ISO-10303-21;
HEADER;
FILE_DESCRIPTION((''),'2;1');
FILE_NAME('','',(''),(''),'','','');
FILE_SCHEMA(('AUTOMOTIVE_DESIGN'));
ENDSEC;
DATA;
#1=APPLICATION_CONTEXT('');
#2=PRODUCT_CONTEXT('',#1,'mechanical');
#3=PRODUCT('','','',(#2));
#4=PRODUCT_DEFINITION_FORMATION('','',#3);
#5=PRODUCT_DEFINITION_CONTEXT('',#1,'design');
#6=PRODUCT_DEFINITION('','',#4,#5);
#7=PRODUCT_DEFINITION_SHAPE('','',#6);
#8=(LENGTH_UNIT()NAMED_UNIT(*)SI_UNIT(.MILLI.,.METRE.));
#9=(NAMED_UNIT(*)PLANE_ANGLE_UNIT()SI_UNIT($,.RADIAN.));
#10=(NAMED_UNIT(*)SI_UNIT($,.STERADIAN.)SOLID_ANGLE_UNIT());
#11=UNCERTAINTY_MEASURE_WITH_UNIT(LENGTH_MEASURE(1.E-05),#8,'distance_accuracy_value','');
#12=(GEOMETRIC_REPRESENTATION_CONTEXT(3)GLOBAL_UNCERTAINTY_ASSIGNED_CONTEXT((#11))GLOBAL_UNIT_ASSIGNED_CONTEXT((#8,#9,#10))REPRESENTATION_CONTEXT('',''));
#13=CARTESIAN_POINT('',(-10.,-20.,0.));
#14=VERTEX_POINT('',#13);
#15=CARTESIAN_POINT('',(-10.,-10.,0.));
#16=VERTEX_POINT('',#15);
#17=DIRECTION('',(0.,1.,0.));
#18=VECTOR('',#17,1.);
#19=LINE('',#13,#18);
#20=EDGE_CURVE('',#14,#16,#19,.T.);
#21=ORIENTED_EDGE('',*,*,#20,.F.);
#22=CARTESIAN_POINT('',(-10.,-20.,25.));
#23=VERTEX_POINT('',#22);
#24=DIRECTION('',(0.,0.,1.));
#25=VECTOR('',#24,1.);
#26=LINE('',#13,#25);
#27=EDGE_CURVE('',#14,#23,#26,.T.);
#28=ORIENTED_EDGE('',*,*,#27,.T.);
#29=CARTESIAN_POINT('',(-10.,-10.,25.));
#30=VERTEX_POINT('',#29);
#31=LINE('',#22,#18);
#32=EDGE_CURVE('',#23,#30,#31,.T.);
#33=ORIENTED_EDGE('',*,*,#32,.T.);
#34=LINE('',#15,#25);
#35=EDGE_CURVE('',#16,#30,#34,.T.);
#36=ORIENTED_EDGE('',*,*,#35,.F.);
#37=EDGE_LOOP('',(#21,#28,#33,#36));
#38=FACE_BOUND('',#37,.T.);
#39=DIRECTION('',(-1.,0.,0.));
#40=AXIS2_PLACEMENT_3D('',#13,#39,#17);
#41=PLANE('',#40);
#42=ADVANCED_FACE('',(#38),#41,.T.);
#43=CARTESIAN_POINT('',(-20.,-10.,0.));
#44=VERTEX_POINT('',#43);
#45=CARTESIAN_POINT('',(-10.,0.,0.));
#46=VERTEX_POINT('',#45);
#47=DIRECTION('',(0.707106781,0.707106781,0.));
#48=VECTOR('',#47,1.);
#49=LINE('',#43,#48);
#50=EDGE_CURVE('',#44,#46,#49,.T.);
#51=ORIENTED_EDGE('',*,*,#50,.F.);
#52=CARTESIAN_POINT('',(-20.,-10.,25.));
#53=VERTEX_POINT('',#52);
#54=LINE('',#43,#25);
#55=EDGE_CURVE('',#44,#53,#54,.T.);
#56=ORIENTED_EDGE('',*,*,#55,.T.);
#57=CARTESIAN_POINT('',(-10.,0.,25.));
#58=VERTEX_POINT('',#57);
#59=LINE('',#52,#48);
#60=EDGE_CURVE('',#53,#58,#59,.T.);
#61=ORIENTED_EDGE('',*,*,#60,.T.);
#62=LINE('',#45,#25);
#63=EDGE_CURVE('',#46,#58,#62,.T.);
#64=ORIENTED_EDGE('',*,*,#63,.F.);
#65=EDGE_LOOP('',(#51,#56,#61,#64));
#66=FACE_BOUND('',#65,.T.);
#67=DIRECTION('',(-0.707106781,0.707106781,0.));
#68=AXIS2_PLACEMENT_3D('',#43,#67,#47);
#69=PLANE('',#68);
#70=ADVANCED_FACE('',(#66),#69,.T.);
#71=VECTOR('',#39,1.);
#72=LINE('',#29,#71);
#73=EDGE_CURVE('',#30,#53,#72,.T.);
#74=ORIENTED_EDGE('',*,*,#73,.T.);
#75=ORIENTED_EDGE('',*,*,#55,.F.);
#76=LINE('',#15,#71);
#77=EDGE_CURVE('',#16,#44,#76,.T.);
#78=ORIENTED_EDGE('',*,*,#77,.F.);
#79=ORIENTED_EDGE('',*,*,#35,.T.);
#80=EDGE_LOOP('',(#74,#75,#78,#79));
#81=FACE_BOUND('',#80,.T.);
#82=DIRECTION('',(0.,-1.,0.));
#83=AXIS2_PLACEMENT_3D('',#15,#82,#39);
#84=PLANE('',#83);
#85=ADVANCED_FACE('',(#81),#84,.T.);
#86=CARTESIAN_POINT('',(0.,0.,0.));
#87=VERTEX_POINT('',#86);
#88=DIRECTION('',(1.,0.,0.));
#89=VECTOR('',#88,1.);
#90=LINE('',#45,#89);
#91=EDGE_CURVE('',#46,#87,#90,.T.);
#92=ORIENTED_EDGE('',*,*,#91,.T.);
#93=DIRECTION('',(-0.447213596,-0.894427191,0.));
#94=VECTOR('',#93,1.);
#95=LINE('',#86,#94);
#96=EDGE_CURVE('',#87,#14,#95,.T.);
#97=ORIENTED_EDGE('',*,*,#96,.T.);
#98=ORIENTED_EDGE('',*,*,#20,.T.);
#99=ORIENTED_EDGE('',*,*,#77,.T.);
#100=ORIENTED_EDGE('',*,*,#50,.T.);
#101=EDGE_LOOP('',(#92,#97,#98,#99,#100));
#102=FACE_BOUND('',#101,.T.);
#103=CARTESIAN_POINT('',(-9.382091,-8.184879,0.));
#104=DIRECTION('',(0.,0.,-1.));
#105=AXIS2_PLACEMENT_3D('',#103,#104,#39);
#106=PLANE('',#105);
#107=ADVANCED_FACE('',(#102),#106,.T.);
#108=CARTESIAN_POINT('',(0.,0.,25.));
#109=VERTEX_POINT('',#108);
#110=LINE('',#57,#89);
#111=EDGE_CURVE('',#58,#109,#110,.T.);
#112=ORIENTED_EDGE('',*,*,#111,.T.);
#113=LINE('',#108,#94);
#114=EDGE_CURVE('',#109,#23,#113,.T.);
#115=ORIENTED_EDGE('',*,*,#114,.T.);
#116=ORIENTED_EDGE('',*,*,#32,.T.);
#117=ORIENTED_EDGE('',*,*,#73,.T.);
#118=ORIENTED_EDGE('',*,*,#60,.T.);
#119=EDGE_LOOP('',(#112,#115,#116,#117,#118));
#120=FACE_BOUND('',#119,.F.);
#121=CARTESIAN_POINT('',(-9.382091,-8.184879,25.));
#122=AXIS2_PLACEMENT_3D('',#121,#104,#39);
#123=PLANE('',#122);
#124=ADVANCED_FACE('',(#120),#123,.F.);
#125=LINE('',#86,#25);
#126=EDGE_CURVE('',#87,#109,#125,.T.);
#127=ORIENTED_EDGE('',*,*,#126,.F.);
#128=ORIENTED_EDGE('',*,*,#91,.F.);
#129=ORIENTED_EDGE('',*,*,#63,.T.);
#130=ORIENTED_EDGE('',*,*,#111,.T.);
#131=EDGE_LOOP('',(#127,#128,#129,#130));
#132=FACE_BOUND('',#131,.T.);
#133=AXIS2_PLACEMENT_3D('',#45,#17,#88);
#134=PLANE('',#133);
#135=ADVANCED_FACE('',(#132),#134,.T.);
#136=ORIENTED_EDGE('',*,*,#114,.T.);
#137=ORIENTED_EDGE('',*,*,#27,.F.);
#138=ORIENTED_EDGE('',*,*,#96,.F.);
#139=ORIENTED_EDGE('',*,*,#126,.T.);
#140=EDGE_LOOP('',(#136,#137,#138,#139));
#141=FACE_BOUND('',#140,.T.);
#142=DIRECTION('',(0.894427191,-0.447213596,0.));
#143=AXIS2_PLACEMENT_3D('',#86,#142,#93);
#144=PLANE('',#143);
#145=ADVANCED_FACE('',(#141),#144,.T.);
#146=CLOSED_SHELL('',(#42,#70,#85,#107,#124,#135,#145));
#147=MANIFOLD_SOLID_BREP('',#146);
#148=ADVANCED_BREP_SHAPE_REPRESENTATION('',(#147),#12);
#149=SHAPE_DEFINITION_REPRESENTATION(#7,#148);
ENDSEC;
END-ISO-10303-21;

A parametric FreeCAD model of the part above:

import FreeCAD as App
import Part
import Sketcher
Q = App.Units.Quantity

doc = App.newDocument("Part")
body = doc.addObject("PartDesign::Body", "Body")

# Sketch on XY plane
sketch1 = body.newObject("Sketcher::SketchObject", "Sketch")
sketch1.AttachmentSupport = (doc.getObject("XY_Plane"), [""])
sketch1.MapMode = "FlatFace"
sketch1.addGeometry(Part.LineSegment(App.Vector(-10, 0, 0), App.Vector(-20, -10, 0)), False)
sketch1.addGeometry(Part.LineSegment(App.Vector(-20, -10, 0), App.Vector(-10, -10, 0)), False)
sketch1.addGeometry(Part.LineSegment(App.Vector(-10, -10, 0), App.Vector(-10, -20, 0)), False)
sketch1.addGeometry(Part.LineSegment(App.Vector(-10, -20, 0), App.Vector(0, 0, 0)), False)
sketch1.addGeometry(Part.LineSegment(App.Vector(0, 0, 0), App.Vector(-10, 0, 0)), False)
sketch1.addConstraint(Sketcher.Constraint("Coincident", 0, 2, 1, 1))
sketch1.addConstraint(Sketcher.Constraint("Coincident", 1, 2, 2, 1))
sketch1.addConstraint(Sketcher.Constraint("Coincident", 2, 2, 3, 1))
sketch1.addConstraint(Sketcher.Constraint("Coincident", 3, 2, 4, 1))
sketch1.addConstraint(Sketcher.Constraint("Coincident", 4, 2, 0, 1))
sketch1.addConstraint(Sketcher.Constraint("Horizontal", 1))
sketch1.addConstraint(Sketcher.Constraint("Vertical", 2))
sketch1.addConstraint(Sketcher.Constraint("Horizontal", 4))
sketch1.addConstraint(Sketcher.Constraint("Coincident", 3, 2, -1, 1))
sketch1.addConstraint(Sketcher.Constraint("Vertical", 2, 2, 4, 2))
sketch1.addConstraint(Sketcher.Constraint("Equal", 1, 4))
sketch1.addConstraint(Sketcher.Constraint("Equal", 4, 2))
sketch1.addConstraint(Sketcher.Constraint("DistanceX", 1, 1, 1, 2, 10.0))
sketch1.addConstraint(Sketcher.Constraint("Angle", 0, Q("-135 deg")))
pad1 = body.newObject("PartDesign::Pad", "Pad")
pad1.Profile = sketch1
pad1.Length = 25

doc.recompute()
